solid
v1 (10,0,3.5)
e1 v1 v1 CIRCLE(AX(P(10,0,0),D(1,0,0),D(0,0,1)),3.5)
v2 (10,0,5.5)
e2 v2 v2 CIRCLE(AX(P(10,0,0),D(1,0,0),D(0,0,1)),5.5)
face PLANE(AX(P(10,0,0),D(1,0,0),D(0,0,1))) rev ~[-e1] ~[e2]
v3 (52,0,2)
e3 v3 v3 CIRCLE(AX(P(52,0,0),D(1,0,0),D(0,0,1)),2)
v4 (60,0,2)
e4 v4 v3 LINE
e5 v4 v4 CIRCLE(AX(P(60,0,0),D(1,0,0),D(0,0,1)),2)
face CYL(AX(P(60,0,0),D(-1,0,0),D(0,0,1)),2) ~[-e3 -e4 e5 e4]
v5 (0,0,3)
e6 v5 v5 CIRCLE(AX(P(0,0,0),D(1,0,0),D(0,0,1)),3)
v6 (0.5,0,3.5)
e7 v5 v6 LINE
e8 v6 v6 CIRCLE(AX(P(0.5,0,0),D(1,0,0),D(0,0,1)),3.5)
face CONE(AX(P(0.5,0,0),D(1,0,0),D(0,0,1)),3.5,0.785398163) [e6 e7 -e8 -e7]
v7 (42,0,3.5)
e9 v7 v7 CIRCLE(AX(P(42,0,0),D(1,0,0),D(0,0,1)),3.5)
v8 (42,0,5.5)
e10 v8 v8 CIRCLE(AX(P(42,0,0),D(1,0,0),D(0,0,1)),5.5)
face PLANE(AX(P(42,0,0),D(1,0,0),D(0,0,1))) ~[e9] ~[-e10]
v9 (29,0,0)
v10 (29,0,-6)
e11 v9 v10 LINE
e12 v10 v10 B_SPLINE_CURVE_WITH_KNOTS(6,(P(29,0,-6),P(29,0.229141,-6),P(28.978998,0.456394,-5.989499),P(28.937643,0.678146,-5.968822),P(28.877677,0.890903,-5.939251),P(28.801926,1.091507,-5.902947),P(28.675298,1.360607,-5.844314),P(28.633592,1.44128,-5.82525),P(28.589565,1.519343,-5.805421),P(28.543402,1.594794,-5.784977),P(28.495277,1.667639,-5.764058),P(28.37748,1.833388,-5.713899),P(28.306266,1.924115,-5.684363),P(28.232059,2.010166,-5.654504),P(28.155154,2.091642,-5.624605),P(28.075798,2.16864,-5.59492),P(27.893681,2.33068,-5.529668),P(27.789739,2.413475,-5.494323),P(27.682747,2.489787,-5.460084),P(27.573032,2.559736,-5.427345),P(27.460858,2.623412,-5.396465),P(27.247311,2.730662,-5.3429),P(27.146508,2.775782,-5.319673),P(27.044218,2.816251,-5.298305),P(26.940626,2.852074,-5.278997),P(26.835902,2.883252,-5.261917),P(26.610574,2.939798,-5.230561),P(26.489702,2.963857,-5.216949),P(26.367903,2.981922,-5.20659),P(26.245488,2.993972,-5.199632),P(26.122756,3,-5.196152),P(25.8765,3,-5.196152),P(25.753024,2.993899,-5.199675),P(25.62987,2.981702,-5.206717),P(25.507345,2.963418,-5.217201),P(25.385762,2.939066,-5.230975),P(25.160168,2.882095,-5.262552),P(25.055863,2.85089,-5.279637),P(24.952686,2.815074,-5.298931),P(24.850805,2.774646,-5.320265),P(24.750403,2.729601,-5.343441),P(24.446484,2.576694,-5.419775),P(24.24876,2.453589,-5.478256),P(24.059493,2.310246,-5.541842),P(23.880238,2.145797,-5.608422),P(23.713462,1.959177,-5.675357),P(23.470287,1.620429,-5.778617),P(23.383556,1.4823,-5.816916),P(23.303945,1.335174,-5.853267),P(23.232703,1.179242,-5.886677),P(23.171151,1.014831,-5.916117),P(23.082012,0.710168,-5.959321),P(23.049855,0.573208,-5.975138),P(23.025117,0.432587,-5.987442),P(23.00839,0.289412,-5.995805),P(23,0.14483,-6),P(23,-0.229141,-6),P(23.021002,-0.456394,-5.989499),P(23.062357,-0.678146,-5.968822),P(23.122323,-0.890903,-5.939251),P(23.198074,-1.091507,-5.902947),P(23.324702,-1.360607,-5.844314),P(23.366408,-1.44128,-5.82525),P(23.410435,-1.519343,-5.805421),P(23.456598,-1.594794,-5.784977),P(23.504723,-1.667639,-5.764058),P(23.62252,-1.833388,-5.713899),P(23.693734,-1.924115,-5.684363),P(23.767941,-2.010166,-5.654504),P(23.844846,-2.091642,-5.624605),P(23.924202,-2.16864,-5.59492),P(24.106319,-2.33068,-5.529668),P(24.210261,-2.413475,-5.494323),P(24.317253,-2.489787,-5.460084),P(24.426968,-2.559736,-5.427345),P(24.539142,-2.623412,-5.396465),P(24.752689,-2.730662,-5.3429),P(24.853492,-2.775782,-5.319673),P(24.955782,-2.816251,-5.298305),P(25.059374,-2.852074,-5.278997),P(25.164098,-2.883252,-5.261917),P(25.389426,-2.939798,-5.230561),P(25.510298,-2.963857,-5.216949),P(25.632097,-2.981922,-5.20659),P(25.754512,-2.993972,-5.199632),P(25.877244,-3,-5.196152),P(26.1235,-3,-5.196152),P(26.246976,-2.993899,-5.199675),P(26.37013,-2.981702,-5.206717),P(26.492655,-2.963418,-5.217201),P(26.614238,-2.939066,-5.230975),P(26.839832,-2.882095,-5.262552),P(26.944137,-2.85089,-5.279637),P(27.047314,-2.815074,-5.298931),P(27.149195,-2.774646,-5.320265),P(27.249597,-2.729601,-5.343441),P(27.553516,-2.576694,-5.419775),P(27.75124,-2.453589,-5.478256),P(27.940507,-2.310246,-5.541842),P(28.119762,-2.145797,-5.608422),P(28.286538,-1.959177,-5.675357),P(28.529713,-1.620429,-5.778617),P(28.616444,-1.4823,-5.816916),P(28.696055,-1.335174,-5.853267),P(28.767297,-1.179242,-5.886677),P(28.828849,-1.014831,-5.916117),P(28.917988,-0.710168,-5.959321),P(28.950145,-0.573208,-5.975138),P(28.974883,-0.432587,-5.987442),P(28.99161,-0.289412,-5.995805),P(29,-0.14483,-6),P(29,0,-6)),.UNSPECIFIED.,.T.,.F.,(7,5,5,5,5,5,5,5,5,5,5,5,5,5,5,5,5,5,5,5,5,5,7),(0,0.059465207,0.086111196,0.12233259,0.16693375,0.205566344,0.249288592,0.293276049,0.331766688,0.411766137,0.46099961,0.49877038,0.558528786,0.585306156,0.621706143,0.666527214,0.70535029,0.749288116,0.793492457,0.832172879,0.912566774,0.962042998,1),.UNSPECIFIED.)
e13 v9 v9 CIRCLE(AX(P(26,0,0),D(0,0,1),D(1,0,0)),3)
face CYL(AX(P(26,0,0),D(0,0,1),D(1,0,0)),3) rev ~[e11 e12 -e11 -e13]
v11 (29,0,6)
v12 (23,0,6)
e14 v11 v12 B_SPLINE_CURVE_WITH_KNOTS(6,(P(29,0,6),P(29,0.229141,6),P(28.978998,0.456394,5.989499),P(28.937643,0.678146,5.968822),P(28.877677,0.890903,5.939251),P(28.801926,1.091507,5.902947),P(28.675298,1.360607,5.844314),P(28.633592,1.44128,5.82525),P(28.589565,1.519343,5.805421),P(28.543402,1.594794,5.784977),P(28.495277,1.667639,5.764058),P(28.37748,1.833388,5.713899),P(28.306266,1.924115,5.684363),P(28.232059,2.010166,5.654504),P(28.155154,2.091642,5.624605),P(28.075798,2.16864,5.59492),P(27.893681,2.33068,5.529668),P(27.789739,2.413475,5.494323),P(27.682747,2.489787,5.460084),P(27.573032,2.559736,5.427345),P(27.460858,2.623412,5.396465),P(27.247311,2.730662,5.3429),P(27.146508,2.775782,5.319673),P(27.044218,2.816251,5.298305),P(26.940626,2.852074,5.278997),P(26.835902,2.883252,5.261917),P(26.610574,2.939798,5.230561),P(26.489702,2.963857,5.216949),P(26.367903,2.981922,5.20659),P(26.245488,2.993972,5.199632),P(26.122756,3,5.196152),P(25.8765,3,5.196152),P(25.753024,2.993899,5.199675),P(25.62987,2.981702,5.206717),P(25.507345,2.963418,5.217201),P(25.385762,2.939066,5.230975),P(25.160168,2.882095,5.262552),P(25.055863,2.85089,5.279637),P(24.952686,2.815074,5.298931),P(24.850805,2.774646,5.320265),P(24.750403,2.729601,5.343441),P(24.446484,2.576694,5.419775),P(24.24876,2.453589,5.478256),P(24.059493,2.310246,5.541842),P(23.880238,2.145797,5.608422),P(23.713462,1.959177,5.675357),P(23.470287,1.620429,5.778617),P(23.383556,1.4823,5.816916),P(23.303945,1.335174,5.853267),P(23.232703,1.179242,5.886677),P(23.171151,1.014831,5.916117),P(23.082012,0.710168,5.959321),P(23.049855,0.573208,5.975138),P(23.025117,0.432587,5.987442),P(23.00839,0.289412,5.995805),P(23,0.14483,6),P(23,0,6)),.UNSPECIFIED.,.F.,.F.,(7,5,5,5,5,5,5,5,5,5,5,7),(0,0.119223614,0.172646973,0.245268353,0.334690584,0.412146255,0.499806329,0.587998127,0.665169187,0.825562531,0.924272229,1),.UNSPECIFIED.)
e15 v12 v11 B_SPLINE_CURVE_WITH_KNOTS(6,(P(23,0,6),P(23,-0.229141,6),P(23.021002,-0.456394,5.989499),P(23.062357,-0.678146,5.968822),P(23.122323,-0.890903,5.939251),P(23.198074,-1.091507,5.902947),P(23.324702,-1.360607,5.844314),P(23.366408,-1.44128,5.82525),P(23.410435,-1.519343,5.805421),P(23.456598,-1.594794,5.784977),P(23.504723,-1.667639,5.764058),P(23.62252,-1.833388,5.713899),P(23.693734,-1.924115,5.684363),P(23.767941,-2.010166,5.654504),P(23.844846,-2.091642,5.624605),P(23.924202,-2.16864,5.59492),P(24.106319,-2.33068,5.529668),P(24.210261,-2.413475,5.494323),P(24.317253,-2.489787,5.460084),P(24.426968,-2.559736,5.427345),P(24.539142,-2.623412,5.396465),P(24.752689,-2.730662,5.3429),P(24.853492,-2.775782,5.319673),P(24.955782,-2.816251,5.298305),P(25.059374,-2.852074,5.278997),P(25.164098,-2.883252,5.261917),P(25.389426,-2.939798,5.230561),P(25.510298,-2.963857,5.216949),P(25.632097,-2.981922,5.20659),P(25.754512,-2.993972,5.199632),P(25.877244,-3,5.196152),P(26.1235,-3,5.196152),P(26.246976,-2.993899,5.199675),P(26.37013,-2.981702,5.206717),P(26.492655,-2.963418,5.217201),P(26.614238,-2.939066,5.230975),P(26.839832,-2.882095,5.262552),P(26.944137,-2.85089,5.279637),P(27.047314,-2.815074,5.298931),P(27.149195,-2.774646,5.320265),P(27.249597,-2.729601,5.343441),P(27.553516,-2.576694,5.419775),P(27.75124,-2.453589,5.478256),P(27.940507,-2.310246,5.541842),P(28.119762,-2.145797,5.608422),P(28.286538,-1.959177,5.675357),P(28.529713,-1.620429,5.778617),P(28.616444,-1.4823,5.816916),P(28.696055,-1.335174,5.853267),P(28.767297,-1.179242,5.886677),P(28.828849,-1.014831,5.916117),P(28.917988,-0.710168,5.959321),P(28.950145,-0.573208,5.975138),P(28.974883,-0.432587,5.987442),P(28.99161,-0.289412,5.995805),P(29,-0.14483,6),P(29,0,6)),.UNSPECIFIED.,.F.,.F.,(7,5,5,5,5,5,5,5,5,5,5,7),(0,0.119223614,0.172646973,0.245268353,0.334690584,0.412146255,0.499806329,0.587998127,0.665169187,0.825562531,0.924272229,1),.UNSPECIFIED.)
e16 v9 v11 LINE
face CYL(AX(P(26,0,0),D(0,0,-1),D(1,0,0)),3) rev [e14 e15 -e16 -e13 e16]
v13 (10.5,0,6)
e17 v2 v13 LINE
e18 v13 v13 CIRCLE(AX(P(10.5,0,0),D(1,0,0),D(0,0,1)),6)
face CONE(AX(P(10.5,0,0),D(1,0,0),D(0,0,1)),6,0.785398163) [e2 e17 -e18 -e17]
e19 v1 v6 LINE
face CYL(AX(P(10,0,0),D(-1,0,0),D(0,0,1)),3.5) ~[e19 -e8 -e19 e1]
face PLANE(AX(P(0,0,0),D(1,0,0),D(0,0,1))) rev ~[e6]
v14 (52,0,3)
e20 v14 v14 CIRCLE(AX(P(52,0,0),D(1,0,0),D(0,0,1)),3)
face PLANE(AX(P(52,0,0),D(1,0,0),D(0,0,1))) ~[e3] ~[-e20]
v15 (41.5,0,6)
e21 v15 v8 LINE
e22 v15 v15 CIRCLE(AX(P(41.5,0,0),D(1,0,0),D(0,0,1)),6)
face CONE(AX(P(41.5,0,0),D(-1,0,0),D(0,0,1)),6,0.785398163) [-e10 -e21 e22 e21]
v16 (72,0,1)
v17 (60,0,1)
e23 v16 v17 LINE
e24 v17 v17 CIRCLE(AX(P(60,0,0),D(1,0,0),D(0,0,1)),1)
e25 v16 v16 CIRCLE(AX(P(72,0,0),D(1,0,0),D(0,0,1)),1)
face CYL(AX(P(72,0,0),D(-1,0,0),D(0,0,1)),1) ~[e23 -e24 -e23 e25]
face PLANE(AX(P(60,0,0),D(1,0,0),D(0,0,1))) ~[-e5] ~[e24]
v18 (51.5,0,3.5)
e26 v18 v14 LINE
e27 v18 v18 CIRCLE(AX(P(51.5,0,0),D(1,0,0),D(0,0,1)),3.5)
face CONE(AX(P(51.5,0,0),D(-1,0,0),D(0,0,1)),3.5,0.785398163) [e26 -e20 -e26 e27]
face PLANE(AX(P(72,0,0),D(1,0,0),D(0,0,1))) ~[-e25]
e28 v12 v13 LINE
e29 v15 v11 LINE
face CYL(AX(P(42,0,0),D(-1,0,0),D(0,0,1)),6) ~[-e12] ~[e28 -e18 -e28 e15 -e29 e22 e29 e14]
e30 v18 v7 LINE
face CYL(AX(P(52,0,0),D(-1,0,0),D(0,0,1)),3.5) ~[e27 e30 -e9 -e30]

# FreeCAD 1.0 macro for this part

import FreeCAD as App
import Part
import Sketcher
from FreeCAD import Vector
Q = App.Units.Quantity


def edges_at(feature, points):
    """Names of the edges that pass closest to the given points."""
    edges = feature.Shape.Edges
    near = lambda p: min(range(len(edges)), key=lambda i: edges[i].distToShape(Part.Vertex(*p))[0])
    return sorted({f"Edge{near(p) + 1}" for p in points})


def add_polygon(sketch, points):
    """Adds a closed chain of lines whose ends are joined by coincident constraints."""
    first, n = sketch.GeometryCount, len(points)
    for a, b in zip(points, points[1:] + points[:1]):
        sketch.addGeometry(Part.LineSegment(App.Vector(*a, 0), App.Vector(*b, 0)), False)
    for i in range(n):
        sketch.addConstraint(Sketcher.Constraint("Coincident", first + i, 2, first + (i + 1) % n, 1))

doc = App.newDocument("Part")
body = doc.addObject("PartDesign::Body", "Body")

sketch1 = body.newObject("Sketcher::SketchObject", "Sketch")
sketch1.AttachmentSupport = (doc.getObject("XZ_Plane"), [""])
sketch1.MapMode = "FlatFace"
add_polygon(sketch1, [(0, 3.5), (0, 0), (72, 0), (72, 1), (60, 1), (60, 2), (52, 2), (52, 3.5), (42, 3.5), (42, 6), (10, 6), (10, 3.5)])
sketch1.addConstraint(Sketcher.Constraint("Vertical", 0))
sketch1.addConstraint(Sketcher.Constraint("Horizontal", 1))
sketch1.addConstraint(Sketcher.Constraint("Vertical", 2))
sketch1.addConstraint(Sketcher.Constraint("Horizontal", 3))
sketch1.addConstraint(Sketcher.Constraint("Vertical", 4))
sketch1.addConstraint(Sketcher.Constraint("Horizontal", 5))
sketch1.addConstraint(Sketcher.Constraint("Vertical", 6))
sketch1.addConstraint(Sketcher.Constraint("Horizontal", 7))
sketch1.addConstraint(Sketcher.Constraint("Vertical", 8))
sketch1.addConstraint(Sketcher.Constraint("Horizontal", 9))
sketch1.addConstraint(Sketcher.Constraint("Vertical", 10))
sketch1.addConstraint(Sketcher.Constraint("Horizontal", 11))
sketch1.addConstraint(Sketcher.Constraint("Coincident", 0, 2, -1, 1))
sketch1.addConstraint(Sketcher.Constraint("Horizontal", 7, 2, 10, 2))
sketch1.addConstraint(Sketcher.Constraint("Equal", 7, 11))
sketch1.addConstraint(Sketcher.Constraint("Equal", 2, 4))
sketch1.addConstraint(Sketcher.Constraint("DistanceX", 1, 1, 1, 2, Q("72 mm")))
sketch1.addConstraint(Sketcher.Constraint("DistanceX", 3, 2, 3, 1, Q("12 mm")))
sketch1.addConstraint(Sketcher.Constraint("DistanceX", 5, 2, 5, 1, Q("8 mm")))
sketch1.addConstraint(Sketcher.Constraint("DistanceX", 7, 2, 7, 1, Q("10 mm")))
sketch1.addConstraint(Sketcher.Constraint("DistanceY", 2, 1, 2, 2, Q("1 mm")))
sketch1.addConstraint(Sketcher.Constraint("DistanceY", 0, 2, 0, 1, Q("3.5 mm")))
sketch1.addConstraint(Sketcher.Constraint("DistanceY", 8, 1, 8, 2, Q("2.5 mm")))
revolution = body.newObject("PartDesign::Revolution", "Revolution")
revolution.Profile = sketch1
revolution.ReferenceAxis = (sketch1, ["H_Axis"])
revolution.Angle = 360

sketch2 = body.newObject("Sketcher::SketchObject", "Sketch001")
sketch2.AttachmentSupport = (doc.getObject("XY_Plane"), [""])
sketch2.MapMode = "FlatFace"
sketch2.addGeometry(Part.Circle(Vector(26, 0, 0), Vector(0, 0, 1), 3), False)
sketch2.addConstraint(Sketcher.Constraint("PointOnObject", 0, 3, -1))
sketch2.addConstraint(Sketcher.Constraint("Diameter", 0, Q("6 mm")))
sketch2.addConstraint(Sketcher.Constraint("DistanceX", -1, 1, 0, 3, Q("26 mm")))
pocket1 = body.newObject("PartDesign::Pocket", "Pocket")
pocket1.Profile = sketch2
pocket1.Type = "ThroughAll"
pocket1.Midplane = True
doc.recompute()

chamfer = body.newObject("PartDesign::Chamfer", "Chamfer")
chamfer.Base = (pocket1, edges_at(pocket1, [
    (52, 0, -3.5),
    (0, 0, -3.5),
    (10, 0, -6),
    (42, 0, -6),
]))
chamfer.Size = 0.5

doc.recompute()
